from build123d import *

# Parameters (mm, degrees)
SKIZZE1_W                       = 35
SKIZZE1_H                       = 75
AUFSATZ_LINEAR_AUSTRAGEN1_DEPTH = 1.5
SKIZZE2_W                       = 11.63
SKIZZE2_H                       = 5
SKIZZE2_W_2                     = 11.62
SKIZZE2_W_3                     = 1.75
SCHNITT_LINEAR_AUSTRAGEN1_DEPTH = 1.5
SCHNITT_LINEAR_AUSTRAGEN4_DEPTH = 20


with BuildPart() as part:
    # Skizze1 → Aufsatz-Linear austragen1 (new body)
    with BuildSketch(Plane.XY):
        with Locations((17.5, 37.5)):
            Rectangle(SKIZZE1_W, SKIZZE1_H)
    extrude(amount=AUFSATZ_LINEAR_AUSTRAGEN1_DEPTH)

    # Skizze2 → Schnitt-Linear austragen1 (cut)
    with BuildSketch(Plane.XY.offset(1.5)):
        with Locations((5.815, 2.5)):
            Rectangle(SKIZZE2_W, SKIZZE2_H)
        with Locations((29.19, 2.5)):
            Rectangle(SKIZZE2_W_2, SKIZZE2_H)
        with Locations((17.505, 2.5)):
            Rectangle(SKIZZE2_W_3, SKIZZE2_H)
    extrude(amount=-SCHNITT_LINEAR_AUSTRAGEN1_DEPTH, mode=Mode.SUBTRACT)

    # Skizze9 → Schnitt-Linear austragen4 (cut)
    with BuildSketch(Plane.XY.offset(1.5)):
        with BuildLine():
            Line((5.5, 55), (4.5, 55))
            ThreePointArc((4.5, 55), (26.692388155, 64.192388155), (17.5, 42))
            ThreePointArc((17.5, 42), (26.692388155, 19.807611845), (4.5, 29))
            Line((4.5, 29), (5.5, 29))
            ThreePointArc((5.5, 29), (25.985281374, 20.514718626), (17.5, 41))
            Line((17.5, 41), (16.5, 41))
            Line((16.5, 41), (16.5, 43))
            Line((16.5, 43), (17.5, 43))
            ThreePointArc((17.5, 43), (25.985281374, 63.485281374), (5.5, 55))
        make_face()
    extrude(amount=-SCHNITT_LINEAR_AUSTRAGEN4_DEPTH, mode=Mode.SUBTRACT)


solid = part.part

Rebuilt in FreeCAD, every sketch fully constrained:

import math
import FreeCAD as App
import Part
import Sketcher
Q = App.Units.Quantity


def add_polygon(sketch, points):
    """Adds a closed chain of lines whose ends are joined by coincident constraints."""
    first, n = sketch.GeometryCount, len(points)
    for a, b in zip(points, points[1:] + points[:1]):
        sketch.addGeometry(Part.LineSegment(App.Vector(*a, 0), App.Vector(*b, 0)), False)
    for i in range(n):
        sketch.addConstraint(Sketcher.Constraint("Coincident", first + i, 2, first + (i + 1) % n, 1))

doc = App.newDocument("Part")
params = doc.addObject("Spreadsheet::Sheet", "Params")
for row, (alias, value) in enumerate([
    ("sketch1_width", "35 mm"),
    ("sketch1_height", "75 mm"),
    ("pad1_length", "1.5 mm"),
    ("sketch2_height", "5 mm"),
    ("sketch2_width", "11.63 mm"),
    ("sketch2_width2", "11.62 mm"),
    ("pocket1_length", "1.5 mm"),
    ("sketch3_radius", "12 mm"),
    ("sketch3_radius2", "13 mm"),
    ("pocket2_length", "20 mm"),
], start=1):
    params.set(f"A{row}", alias)
    params.set(f"B{row}", "=" + value)
    params.setAlias(f"B{row}", alias)

body = doc.addObject("PartDesign::Body", "Body")

sketch1 = body.newObject("Sketcher::SketchObject", "Sketch")
sketch1.AttachmentSupport = (doc.getObject("XY_Plane"), [""])
sketch1.MapMode = "FlatFace"
add_polygon(sketch1, [(0, 75), (0, 0), (35, 0), (35, 75)])
sketch1.addConstraint(Sketcher.Constraint("Vertical", 0))
sketch1.addConstraint(Sketcher.Constraint("Horizontal", 1))
sketch1.addConstraint(Sketcher.Constraint("Vertical", 2))
sketch1.addConstraint(Sketcher.Constraint("Horizontal", 3))
sketch1.addConstraint(Sketcher.Constraint("Coincident", 0, 2, -1, 1))
sketch1.addConstraint(Sketcher.Constraint("DistanceX", 1, 1, 1, 2, Q("35 mm")))
sketch1.addConstraint(Sketcher.Constraint("DistanceY", 0, 2, 0, 1, Q("75 mm")))
sketch1.setExpression("Constraints[9]", "Params.sketch1_width")
sketch1.setExpression("Constraints[10]", "Params.sketch1_height")
pad1 = body.newObject("PartDesign::Pad", "Pad")
pad1.Profile = sketch1
pad1.setExpression("Length", "Params.pad1_length")

sketch2 = body.newObject("Sketcher::SketchObject", "Sketch001")
sketch2.AttachmentSupport = (doc.getObject("XY_Plane"), [""])
sketch2.MapMode = "FlatFace"
sketch2.AttachmentOffset = App.Placement(App.Vector(0, 0, 1.5), App.Rotation())
add_polygon(sketch2, [(0, 5), (0, 0), (11.6, 0), (11.6, 5)])
add_polygon(sketch2, [(23.4, 5), (23.4, 0), (35, 0), (35, 5)])
add_polygon(sketch2, [(16.6, 5), (16.6, 0), (18.4, 0), (18.4, 5)])
sketch2.addConstraint(Sketcher.Constraint("Vertical", 0))
sketch2.addConstraint(Sketcher.Constraint("Horizontal", 1))
sketch2.addConstraint(Sketcher.Constraint("Vertical", 2))
sketch2.addConstraint(Sketcher.Constraint("Horizontal", 3))
sketch2.addConstraint(Sketcher.Constraint("Vertical", 4))
sketch2.addConstraint(Sketcher.Constraint("Horizontal", 5))
sketch2.addConstraint(Sketcher.Constraint("Vertical", 6))
sketch2.addConstraint(Sketcher.Constraint("Horizontal", 7))
sketch2.addConstraint(Sketcher.Constraint("Vertical", 8))
sketch2.addConstraint(Sketcher.Constraint("Horizontal", 9))
sketch2.addConstraint(Sketcher.Constraint("Vertical", 10))
sketch2.addConstraint(Sketcher.Constraint("Horizontal", 11))
sketch2.addConstraint(Sketcher.Constraint("Coincident", 0, 2, -1, 1))
sketch2.addConstraint(Sketcher.Constraint("PointOnObject", 4, 2, -1))
sketch2.addConstraint(Sketcher.Constraint("PointOnObject", 8, 2, -1))
sketch2.addConstraint(Sketcher.Constraint("Horizontal", 3, 2, 6, 2))
sketch2.addConstraint(Sketcher.Constraint("Horizontal", 7, 2, 10, 2))
sketch2.addConstraint(Sketcher.Constraint("DistanceY", 0, 2, 0, 1, Q("5 mm")))
sketch2.addConstraint(Sketcher.Constraint("DistanceX", -1, 1, 5, 2, Q("35 mm")))
sketch2.addConstraint(Sketcher.Constraint("DistanceX", 1, 2, 8, 2, Q("5 mm")))
sketch2.addConstraint(Sketcher.Constraint("DistanceX", 9, 2, 4, 2, Q("5 mm")))
sketch2.addConstraint(Sketcher.Constraint("DistanceX", 1, 1, 1, 2, Q("11.63 mm")))
sketch2.addConstraint(Sketcher.Constraint("DistanceX", 5, 1, 5, 2, Q("11.62 mm")))
sketch2.setExpression("Constraints[29]", "Params.sketch2_height")
sketch2.setExpression("Constraints[33]", "Params.sketch2_width")
sketch2.setExpression("Constraints[34]", "Params.sketch2_width2")
pocket1 = body.newObject("PartDesign::Pocket", "Pocket")
pocket1.Profile = sketch2
pocket1.setExpression("Length", "Params.pocket1_length")

sketch3 = body.newObject("Sketcher::SketchObject", "Sketch002")
sketch3.AttachmentSupport = (doc.getObject("XY_Plane"), [""])
sketch3.MapMode = "FlatFace"
sketch3.AttachmentOffset = App.Placement(App.Vector(0, 0, 1.5), App.Rotation())
sketch3.addGeometry(Part.LineSegment(App.Vector(4.5, 55, 0), App.Vector(5.5, 55, 0)), False)
sketch3.addGeometry(Part.ArcOfCircle(Part.Circle(App.Vector(17.5, 55, 0), App.Vector(0, 0, 1), 12), math.radians(-90), math.radians(180)), False)
sketch3.addGeometry(Part.LineSegment(App.Vector(17.5, 43, 0), App.Vector(16.5, 43, 0)), False)
sketch3.addGeometry(Part.LineSegment(App.Vector(16.5, 43, 0), App.Vector(16.5, 41, 0)), False)
sketch3.addGeometry(Part.LineSegment(App.Vector(16.5, 41, 0), App.Vector(17.5, 41, 0)), False)
sketch3.addGeometry(Part.ArcOfCircle(Part.Circle(App.Vector(17.5, 29, 0), App.Vector(0, 0, 1), 12), math.radians(180), math.radians(450)), False)
sketch3.addGeometry(Part.LineSegment(App.Vector(5.5, 29, 0), App.Vector(4.5, 29, 0)), False)
sketch3.addGeometry(Part.ArcOfCircle(Part.Circle(App.Vector(17.5, 29, 0), App.Vector(0, 0, 1), 13), math.radians(180), math.radians(450)), False)
sketch3.addGeometry(Part.ArcOfCircle(Part.Circle(App.Vector(17.5, 55, 0), App.Vector(0, 0, 1), 13), math.radians(-90), math.radians(180)), False)
sketch3.addConstraint(Sketcher.Constraint("Coincident", 0, 2, 1, 2))
sketch3.addConstraint(Sketcher.Constraint("Tangent", 1, 1, 2, 1))
sketch3.addConstraint(Sketcher.Constraint("Coincident", 2, 2, 3, 1))
sketch3.addConstraint(Sketcher.Constraint("Coincident", 3, 2, 4, 1))
sketch3.addConstraint(Sketcher.Constraint("Tangent", 4, 2, 5, 2))
sketch3.addConstraint(Sketcher.Constraint("Coincident", 5, 1, 6, 1))
sketch3.addConstraint(Sketcher.Constraint("Coincident", 6, 2, 7, 1))
sketch3.addConstraint(Sketcher.Constraint("Tangent", 7, 2, 8, 1))
sketch3.addConstraint(Sketcher.Constraint("Coincident", 8, 2, 0, 1))
sketch3.addConstraint(Sketcher.Constraint("Horizontal", 0))
sketch3.addConstraint(Sketcher.Constraint("Horizontal", 2))
sketch3.addConstraint(Sketcher.Constraint("Vertical", 3))
sketch3.addConstraint(Sketcher.Constraint("Horizontal", 4))
sketch3.addConstraint(Sketcher.Constraint("Horizontal", 6))
sketch3.addConstraint(Sketcher.Constraint("Coincident", 7, 3, 5, 3))
sketch3.addConstraint(Sketcher.Constraint("Coincident", 8, 3, 1, 3))
sketch3.addConstraint(Sketcher.Constraint("Equal", 1, 5))
sketch3.addConstraint(Sketcher.Constraint("Equal", 7, 8))
sketch3.addConstraint(Sketcher.Constraint("Horizontal", 8, 3, 0, 2))
sketch3.addConstraint(Sketcher.Constraint("Horizontal", 7, 3, 5, 1))
sketch3.addConstraint(Sketcher.Constraint("Vertical", 1, 3, 5, 3))
sketch3.addConstraint(Sketcher.Constraint("Equal", 0, 2))
sketch3.addConstraint(Sketcher.Constraint("Radius", 1, Q("12 mm")))
sketch3.addConstraint(Sketcher.Constraint("Radius", 7, Q("13 mm")))
sketch3.addConstraint(Sketcher.Constraint("DistanceY", -1, 1, 1, 3, Q("55 mm")))
sketch3.addConstraint(Sketcher.Constraint("DistanceX", -1, 1, 1, 3, Q("17.5 mm")))
sketch3.setExpression("Constraints[22]", "Params.sketch3_radius")
sketch3.setExpression("Constraints[23]", "Params.sketch3_radius2")
pocket2 = body.newObject("PartDesign::Pocket", "Pocket001")
pocket2.Profile = sketch3
pocket2.setExpression("Length", "Params.pocket2_length")

doc.recompute()
